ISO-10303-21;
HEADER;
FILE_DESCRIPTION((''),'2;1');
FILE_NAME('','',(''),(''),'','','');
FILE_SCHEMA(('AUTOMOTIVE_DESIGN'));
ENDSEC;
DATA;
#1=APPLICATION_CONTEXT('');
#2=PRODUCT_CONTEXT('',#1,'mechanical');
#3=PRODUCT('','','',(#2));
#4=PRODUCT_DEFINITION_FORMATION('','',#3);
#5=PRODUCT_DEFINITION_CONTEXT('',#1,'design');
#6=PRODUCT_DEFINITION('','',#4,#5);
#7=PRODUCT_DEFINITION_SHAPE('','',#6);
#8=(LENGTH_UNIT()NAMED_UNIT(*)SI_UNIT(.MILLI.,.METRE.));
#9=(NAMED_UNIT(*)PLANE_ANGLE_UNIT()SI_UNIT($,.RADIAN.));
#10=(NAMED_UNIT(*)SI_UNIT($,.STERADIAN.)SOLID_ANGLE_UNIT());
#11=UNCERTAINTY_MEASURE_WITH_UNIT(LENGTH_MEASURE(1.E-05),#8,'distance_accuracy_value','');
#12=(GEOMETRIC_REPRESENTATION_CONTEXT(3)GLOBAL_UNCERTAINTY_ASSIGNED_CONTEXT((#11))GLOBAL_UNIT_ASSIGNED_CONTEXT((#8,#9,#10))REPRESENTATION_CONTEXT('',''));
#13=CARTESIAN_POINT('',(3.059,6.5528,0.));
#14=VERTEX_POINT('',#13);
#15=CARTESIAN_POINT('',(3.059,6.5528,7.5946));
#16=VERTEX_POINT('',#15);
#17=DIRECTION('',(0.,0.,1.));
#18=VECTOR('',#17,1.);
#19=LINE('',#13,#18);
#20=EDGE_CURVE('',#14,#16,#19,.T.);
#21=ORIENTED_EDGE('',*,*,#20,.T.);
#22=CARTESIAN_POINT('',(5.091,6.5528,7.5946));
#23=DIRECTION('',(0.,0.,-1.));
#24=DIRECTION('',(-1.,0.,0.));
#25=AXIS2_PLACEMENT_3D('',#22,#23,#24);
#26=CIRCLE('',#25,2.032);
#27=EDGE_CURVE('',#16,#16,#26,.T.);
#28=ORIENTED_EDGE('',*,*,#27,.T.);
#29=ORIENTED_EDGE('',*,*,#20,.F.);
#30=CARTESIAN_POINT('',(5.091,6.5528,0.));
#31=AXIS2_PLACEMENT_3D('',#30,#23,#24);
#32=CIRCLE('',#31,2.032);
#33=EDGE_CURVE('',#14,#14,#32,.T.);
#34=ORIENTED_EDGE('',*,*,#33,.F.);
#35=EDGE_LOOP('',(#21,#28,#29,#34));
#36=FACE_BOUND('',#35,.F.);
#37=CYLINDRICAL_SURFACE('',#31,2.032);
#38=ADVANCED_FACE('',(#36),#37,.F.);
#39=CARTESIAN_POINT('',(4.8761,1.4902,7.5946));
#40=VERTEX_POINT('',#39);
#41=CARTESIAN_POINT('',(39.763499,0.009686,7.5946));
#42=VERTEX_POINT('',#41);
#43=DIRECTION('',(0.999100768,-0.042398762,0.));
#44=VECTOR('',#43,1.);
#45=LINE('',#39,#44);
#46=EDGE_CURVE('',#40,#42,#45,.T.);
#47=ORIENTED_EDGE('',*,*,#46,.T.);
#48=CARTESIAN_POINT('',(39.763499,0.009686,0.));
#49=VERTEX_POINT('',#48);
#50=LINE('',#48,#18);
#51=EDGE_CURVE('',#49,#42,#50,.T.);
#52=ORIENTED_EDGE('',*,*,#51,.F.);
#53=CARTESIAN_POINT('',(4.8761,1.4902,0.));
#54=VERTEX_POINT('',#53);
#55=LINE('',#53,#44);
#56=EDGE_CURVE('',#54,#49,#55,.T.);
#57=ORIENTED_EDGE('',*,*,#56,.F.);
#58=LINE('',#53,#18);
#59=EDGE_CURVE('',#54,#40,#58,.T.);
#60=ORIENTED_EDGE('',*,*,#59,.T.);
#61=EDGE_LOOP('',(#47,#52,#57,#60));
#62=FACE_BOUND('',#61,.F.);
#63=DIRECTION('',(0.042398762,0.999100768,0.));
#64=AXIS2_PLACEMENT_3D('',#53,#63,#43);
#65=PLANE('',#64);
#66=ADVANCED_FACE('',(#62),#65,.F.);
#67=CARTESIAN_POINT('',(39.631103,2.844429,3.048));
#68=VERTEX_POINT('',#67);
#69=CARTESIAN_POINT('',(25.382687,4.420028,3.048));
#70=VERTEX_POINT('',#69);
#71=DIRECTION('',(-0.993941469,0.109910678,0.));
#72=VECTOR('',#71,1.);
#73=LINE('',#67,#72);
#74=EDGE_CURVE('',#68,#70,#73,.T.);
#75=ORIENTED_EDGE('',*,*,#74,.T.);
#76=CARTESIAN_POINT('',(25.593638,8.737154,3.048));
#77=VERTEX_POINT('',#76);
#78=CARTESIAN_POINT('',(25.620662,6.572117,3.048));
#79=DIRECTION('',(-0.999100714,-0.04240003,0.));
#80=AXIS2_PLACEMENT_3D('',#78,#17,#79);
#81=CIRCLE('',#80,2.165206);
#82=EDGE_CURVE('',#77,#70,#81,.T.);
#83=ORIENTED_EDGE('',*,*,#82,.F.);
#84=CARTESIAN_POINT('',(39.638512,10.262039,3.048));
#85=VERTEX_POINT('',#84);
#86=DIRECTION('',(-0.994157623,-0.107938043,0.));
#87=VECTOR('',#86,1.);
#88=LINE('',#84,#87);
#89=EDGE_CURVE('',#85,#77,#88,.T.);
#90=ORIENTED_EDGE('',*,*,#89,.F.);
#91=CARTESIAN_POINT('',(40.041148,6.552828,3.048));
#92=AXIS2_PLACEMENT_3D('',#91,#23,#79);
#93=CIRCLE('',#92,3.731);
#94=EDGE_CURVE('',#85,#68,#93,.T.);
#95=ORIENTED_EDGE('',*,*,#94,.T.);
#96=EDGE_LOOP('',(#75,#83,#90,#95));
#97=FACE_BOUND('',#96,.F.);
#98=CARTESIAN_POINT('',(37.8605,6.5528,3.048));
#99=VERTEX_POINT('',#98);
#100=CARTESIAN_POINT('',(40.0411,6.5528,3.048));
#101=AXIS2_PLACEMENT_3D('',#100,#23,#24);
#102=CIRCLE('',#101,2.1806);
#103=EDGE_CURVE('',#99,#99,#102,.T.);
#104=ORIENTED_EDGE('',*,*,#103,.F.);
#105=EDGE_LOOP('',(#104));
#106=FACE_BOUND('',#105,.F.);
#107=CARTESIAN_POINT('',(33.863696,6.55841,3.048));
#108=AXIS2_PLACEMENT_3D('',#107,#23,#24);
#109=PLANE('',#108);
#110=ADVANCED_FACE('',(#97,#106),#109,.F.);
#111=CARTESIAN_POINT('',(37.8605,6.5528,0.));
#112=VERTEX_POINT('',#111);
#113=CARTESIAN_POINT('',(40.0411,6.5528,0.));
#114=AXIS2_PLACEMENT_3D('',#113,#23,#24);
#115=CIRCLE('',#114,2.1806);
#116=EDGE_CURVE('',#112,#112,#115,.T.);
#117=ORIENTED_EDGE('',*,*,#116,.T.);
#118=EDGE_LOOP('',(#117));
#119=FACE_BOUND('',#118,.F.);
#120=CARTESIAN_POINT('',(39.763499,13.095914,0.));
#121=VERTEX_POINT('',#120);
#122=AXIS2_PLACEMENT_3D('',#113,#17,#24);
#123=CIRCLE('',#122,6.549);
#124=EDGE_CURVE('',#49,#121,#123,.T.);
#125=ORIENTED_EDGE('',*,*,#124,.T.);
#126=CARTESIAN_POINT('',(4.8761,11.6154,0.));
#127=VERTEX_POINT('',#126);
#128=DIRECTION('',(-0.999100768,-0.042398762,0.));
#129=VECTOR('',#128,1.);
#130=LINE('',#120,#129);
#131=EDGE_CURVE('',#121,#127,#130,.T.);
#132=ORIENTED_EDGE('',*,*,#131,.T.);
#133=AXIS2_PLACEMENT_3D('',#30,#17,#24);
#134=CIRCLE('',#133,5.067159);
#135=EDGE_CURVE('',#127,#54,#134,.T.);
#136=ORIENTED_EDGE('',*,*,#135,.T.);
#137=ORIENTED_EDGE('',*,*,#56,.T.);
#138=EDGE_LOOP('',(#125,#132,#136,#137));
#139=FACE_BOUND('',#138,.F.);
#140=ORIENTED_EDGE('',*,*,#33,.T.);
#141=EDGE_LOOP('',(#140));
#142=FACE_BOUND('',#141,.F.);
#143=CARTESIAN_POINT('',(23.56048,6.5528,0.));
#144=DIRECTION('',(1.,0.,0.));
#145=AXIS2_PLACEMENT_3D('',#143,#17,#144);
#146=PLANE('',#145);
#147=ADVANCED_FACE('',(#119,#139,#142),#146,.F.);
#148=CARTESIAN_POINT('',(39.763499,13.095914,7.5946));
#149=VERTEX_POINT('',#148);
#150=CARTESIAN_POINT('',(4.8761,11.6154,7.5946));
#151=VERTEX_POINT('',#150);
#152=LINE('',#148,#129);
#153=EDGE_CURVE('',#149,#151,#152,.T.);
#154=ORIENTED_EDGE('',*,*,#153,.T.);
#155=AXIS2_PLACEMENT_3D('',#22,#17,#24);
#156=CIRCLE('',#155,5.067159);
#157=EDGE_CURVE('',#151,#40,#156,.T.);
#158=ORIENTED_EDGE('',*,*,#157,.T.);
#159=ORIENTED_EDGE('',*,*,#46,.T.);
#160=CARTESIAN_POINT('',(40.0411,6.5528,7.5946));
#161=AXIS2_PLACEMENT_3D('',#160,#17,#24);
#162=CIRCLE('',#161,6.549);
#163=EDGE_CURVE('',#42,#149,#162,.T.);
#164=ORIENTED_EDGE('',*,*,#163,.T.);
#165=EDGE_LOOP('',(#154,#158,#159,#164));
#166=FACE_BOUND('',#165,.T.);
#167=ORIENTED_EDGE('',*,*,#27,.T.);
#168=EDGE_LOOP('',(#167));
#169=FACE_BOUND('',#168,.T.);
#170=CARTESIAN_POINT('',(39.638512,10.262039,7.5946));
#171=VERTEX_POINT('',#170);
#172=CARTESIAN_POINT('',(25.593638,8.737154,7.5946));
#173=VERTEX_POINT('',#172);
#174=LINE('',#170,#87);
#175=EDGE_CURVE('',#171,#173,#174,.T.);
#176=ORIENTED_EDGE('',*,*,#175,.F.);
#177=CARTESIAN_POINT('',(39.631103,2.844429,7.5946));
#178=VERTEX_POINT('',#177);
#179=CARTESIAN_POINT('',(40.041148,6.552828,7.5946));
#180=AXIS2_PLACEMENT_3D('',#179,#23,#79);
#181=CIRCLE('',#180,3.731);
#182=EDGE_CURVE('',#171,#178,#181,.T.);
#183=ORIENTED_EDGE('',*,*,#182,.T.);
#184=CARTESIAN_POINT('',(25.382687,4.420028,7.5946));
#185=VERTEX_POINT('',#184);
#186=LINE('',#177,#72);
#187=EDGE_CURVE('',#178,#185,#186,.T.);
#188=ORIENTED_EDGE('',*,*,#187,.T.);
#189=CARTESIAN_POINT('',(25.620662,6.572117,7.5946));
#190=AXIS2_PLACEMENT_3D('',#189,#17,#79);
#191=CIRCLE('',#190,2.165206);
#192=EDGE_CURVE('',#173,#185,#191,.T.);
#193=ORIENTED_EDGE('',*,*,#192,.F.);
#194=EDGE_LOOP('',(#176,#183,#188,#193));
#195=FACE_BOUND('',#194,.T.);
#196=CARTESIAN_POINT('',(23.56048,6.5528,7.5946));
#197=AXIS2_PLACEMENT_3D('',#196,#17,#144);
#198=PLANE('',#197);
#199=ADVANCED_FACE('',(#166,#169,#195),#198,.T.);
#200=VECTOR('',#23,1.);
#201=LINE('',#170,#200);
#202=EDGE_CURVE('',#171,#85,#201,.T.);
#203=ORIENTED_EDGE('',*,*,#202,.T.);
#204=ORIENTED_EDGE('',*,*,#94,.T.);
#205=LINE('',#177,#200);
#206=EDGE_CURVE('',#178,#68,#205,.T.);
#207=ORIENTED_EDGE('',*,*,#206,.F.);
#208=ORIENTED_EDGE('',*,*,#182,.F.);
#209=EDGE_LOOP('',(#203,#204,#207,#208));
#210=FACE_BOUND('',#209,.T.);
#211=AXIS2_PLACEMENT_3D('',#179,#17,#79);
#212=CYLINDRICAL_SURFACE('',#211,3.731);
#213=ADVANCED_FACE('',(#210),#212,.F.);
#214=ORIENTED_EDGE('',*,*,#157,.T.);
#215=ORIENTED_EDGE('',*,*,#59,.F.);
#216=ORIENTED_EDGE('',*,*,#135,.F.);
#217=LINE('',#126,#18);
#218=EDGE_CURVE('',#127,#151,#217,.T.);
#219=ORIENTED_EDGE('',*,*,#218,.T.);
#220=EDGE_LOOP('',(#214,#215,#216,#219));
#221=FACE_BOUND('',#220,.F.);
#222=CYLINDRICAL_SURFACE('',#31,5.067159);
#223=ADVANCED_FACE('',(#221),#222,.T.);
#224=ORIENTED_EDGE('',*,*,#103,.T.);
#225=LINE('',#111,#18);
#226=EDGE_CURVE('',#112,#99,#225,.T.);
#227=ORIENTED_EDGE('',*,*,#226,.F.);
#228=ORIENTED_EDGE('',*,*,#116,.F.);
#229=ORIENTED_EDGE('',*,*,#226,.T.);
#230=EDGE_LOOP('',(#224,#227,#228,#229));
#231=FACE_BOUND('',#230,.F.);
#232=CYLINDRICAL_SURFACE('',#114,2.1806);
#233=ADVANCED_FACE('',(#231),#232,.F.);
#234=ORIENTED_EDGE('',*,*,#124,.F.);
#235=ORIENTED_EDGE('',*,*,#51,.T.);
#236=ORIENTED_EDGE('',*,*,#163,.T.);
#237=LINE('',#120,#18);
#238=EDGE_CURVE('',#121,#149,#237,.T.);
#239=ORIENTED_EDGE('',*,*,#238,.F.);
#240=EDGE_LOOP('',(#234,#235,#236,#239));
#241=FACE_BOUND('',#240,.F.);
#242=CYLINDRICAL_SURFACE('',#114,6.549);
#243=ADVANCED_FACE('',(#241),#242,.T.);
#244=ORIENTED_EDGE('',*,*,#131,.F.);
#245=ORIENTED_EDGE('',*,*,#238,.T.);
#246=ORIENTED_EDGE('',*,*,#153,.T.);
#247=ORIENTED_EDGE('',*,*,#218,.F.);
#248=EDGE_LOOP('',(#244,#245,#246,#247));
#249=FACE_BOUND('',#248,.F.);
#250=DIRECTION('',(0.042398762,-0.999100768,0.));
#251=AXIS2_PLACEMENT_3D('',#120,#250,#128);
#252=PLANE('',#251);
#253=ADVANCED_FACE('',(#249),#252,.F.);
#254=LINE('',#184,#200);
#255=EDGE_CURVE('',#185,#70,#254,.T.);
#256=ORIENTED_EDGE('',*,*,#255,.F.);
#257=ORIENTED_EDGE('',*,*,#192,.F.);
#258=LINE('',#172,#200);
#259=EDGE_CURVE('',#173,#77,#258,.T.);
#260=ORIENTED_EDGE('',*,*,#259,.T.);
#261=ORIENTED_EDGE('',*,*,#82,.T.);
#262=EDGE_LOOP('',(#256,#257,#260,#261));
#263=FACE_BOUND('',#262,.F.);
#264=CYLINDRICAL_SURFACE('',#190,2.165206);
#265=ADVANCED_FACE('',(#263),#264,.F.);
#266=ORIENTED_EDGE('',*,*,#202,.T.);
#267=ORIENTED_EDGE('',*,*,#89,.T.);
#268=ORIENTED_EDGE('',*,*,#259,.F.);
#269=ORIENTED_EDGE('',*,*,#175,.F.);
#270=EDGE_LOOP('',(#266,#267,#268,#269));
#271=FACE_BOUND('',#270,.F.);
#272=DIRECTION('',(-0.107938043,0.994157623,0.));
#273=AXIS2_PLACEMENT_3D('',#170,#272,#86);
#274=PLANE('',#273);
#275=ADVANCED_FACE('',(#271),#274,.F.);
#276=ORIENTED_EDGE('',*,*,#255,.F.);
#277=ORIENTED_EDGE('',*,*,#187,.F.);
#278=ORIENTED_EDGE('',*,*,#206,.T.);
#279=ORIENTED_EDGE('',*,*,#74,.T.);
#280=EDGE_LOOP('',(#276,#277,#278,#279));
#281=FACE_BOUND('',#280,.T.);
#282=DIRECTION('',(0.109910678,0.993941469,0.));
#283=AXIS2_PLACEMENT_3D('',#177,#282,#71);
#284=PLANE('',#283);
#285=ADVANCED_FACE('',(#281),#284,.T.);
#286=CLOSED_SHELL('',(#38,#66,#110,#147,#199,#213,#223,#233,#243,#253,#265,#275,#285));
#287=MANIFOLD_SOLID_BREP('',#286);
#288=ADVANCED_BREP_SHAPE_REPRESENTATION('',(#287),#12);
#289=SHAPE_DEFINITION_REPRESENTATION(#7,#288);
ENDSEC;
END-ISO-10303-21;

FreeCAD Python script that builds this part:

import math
import FreeCAD as App
import Part
import Sketcher

V = App.Vector
Q = App.Units.Quantity

doc = App.newDocument("Part")
body = doc.addObject("PartDesign::Body", "Body")

sketch1 = doc.addObject("Sketcher::SketchObject", "Sketch")
body.addObject(sketch1)
sketch1.AttachmentSupport = (doc.XY_Plane, [""])
sketch1.MapMode = "FlatFace"
sketch1.addGeometry(Part.LineSegment(V(4.8761, 11.6154, 0), V(39.7635, 13.0959, 0)), False)
sketch1.addGeometry(Part.ArcOfCircle(Part.Circle(V(40.0411, 6.5528, 0), V(0, 0, 1), 6.548986), math.radians(-92.429395), math.radians(92.429395)), False)
sketch1.addGeometry(Part.LineSegment(V(39.7635, 0.0097, 0), V(4.8761, 1.4902, 0)), False)
sketch1.addGeometry(Part.ArcOfCircle(Part.Circle(V(5.091, 6.5528, 0), V(0, 0, 1), 5.067159), math.radians(92.430663), math.radians(267.569337)), False)
sketch1.addGeometry(Part.Circle(V(40.0411, 6.5528, 0), V(0, 0, 1), 2.1806), False)
sketch1.addGeometry(Part.Circle(V(5.091, 6.5528, 0), V(0, 0, 1), 2.032), False)
sketch1.addConstraint(Sketcher.Constraint("Coincident", 0, 2, 1, 2))
sketch1.addConstraint(Sketcher.Constraint("Coincident", 1, 1, 2, 1))
sketch1.addConstraint(Sketcher.Constraint("Coincident", 2, 2, 3, 2))
sketch1.addConstraint(Sketcher.Constraint("Coincident", 3, 1, 0, 1))
sketch1.addConstraint(Sketcher.Constraint("Coincident", 4, 3, 1, 3))
sketch1.addConstraint(Sketcher.Constraint("Coincident", 5, 3, 3, 3))
sketch1.addConstraint(Sketcher.Constraint("Diameter", 5, Q("0.16 in")))
sketch1.addConstraint(Sketcher.Constraint("Diameter", 4, Q("0.1717 in")))
sketch1.addConstraint(Sketcher.Constraint("Radius", 3, Q("0.1995 in")))
sketch1.addConstraint(Sketcher.Constraint("Radius", 1, 6.549))
sketch1.addConstraint(Sketcher.Constraint("DistanceX", 3, 3, 1, 3, Q("1.376 in")))
sketch1.addConstraint(Sketcher.Constraint("DistanceX", -1, 1, 0, 2, Q("1.5655 in")))
sketch1.addConstraint(Sketcher.Constraint("DistanceX", -1, 1, 1, 1, Q("1.5655 in")))
sketch1.addConstraint(Sketcher.Constraint("DistanceY", -1, 1, 3, 1, Q("0.4573 in")))
sketch1.addConstraint(Sketcher.Constraint("DistanceY", 1, 3, 0, 2, Q("0.2576 in")))
sketch1.addConstraint(Sketcher.Constraint("DistanceY", 3, 3, 0, 2, Q("0.2576 in")))
sketch1.addConstraint(Sketcher.Constraint("Distance", 0, 34.9188))
sketch1.addConstraint(Sketcher.Constraint("Distance", 2, 34.9188))
pad1 = doc.addObject("PartDesign::Pad", "Pad")
body.addObject(pad1)
pad1.Profile = sketch1
pad1.Length = Q("0.299 in")

sketch2 = doc.addObject("Sketcher::SketchObject", "Sketch001")
body.addObject(sketch2)
sketch2.AttachmentSupport = (doc.XY_Plane, [""])
sketch2.MapMode = "FlatFace"
sketch2.AttachmentOffset = App.Placement(V(0, 0, 0.299 * 25.4), App.Rotation())
sketch2.addGeometry(Part.LineSegment(V(25.382694, 4.420092, 0), V(39.631112, 2.844508, 0)), False)
sketch2.addGeometry(Part.ArcOfCircle(Part.Circle(V(40.041148, 6.552828, 0), V(0, 0, 1), 3.730953), math.radians(-96.309669), math.radians(96.195215)), False)
sketch2.addGeometry(Part.LineSegment(V(39.638517, 10.261992, 0), V(25.593637, 8.737218, 0)), False)
sketch2.addGeometry(Part.ArcOfCircle(Part.Circle(V(25.620662, 6.572117, 0), V(0, 0, 1), 2.16527), math.radians(90.715125), math.radians(263.689945)), False)
sketch2.addConstraint(Sketcher.Constraint("Coincident", 0, 2, 1, 1))
sketch2.addConstraint(Sketcher.Constraint("Coincident", 1, 2, 2, 1))
sketch2.addConstraint(Sketcher.Constraint("Coincident", 2, 2, 3, 1))
sketch2.addConstraint(Sketcher.Constraint("Coincident", 3, 2, 0, 1))
sketch2.addConstraint(Sketcher.Constraint("Radius", 1, Q("0.1468898 in")))
sketch2.addConstraint(Sketcher.Constraint("Radius", 3, 2.1653))
sketch2.addConstraint(Sketcher.Constraint("DistanceY", 3, 2, 1, 2, Q("0.23 in")))
sketch2.addConstraint(Sketcher.Constraint("DistanceY", -1, 1, 0, 2, Q("0.112 in")))
sketch2.addConstraint(Sketcher.Constraint("DistanceY", 0, 2, 1, 3, Q("0.146 in")))
sketch2.addConstraint(Sketcher.Constraint("DistanceY", 1, 3, 2, 2, Q("0.086 in")))
sketch2.addConstraint(Sketcher.Constraint("Distance", 2, Q("0.5562 in")))
sketch2.addConstraint(Sketcher.Constraint("DistanceX", 3, 3, 0, 2, Q("0.5516 in")))
sketch2.addConstraint(Sketcher.Constraint("DistanceX", 0, 2, 1, 2, Q("0.0003 in")))
sketch2.addConstraint(Sketcher.Constraint("DistanceX", -1, 1, 1, 3, 40.0411))
pocket1 = doc.addObject("PartDesign::Pocket", "Pocket")
body.addObject(pocket1)
pocket1.Profile = sketch2
pocket1.Length = Q("0.179 in")

doc.recompute()
